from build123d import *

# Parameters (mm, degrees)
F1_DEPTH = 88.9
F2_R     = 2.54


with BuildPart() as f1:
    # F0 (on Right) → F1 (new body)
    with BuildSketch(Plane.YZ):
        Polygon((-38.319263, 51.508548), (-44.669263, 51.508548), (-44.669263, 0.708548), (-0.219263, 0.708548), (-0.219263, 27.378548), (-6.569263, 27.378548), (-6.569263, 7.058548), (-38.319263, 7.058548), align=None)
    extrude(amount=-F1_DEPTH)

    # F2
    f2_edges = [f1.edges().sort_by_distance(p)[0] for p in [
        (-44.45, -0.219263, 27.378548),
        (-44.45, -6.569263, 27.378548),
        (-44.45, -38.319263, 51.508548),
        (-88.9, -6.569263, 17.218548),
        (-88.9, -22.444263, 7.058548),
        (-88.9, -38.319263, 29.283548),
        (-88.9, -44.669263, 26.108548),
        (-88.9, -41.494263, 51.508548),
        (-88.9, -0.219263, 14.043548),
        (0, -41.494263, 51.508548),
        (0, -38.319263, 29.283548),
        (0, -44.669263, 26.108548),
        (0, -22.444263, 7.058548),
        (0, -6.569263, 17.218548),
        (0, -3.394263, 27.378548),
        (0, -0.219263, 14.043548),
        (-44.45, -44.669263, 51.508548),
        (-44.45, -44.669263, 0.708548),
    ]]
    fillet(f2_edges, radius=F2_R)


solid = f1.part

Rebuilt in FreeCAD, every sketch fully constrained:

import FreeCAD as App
import Part
import Sketcher
from FreeCAD import Vector
Q = App.Units.Quantity


def edges_at(feature, points):
    """Names of the edges that pass closest to the given points."""
    edges = feature.Shape.Edges
    near = lambda p: min(range(len(edges)), key=lambda i: edges[i].distToShape(Part.Vertex(*p))[0])
    return sorted({f"Edge{near(p) + 1}" for p in points})


def add_polygon(sketch, points):
    """Adds a closed chain of lines whose ends are joined by coincident constraints."""
    first, n = sketch.GeometryCount, len(points)
    for a, b in zip(points, points[1:] + points[:1]):
        sketch.addGeometry(Part.LineSegment(App.Vector(*a, 0), App.Vector(*b, 0)), False)
    for i in range(n):
        sketch.addConstraint(Sketcher.Constraint("Coincident", first + i, 2, first + (i + 1) % n, 1))

doc = App.newDocument("Part")
body = doc.addObject("PartDesign::Body", "Body")

# Sketch on YZ plane
sketch1 = doc.addObject("Sketcher::SketchObject", "Sketch")
body.addObject(sketch1)
sketch1.AttachmentSupport = (doc.YZ_Plane, [""])
sketch1.MapMode = "FlatFace"
add_polygon(sketch1, [(-38.319263, 51.508548), (-44.669263, 51.508548), (-44.669263, 0.708548), (-0.219263, 0.708548), (-0.219263, 27.378548), (-6.569263, 27.378548), (-6.569263, 7.058548), (-38.319263, 7.058548)])  # lines 0-7
sketch1.addConstraint([
    Sketcher.Constraint("Horizontal", 0),
    Sketcher.Constraint("Vertical", 1),
    Sketcher.Constraint("Horizontal", 2),
    Sketcher.Constraint("Vertical", 3),
    Sketcher.Constraint("Horizontal", 4),
    Sketcher.Constraint("Vertical", 5),
    Sketcher.Constraint("Horizontal", 6),
    Sketcher.Constraint("Vertical", 7),
    Sketcher.Constraint("Equal", 0, 4),
    Sketcher.Constraint("Equal", 2, 7),
    Sketcher.Constraint("DistanceY", 1, 2, 1, 1, Q("2 in")),
    Sketcher.Constraint("DistanceY", 5, 2, 5, 1, Q("0.8 in")),
    Sketcher.Constraint("DistanceX", 0, 2, 0, 1, Q("0.25 in")),
    Sketcher.Constraint("DistanceX", 2, 1, 2, 2, Q("1.75 in")),
    Sketcher.Constraint("DistanceX", 0, 2, -1, 1, 44.669263),
    Sketcher.Constraint("DistanceY", -1, 1, 0, 2, 51.508548),
])
pad1 = doc.addObject("PartDesign::Pad", "Pad")
body.addObject(pad1)
pad1.Profile = sketch1
pad1.Length = Q("3.5 in")
pad1.Reversed = True
doc.recompute()

fillet = doc.addObject("PartDesign::Fillet", "Fillet")
body.addObject(fillet)
fillet.Base = (pad1, edges_at(pad1, [
    (-44.45, -0.219, 27.379),
    (-44.45, -6.569, 27.379),
    (-44.45, -38.319, 51.509),
    (-88.9, -6.569, 17.219),
    (-88.9, -22.444, 7.059),
    (-88.9, -38.319, 29.284),
    (-88.9, -44.669, 26.109),
    (-88.9, -41.494, 51.509),
    (-88.9, -0.219, 14.044),
    (0, -41.494, 51.509),
    (0, -38.319, 29.284),
    (0, -44.669, 26.109),
    (0, -22.444, 7.059),
    (0, -6.569, 17.219),
    (0, -3.394, 27.379),
    (0, -0.219, 14.044),
    (-44.45, -44.669, 51.509),
    (-44.45, -44.669, 0.709),
]))
fillet.Radius = Q("0.1 in")

doc.recompute()
